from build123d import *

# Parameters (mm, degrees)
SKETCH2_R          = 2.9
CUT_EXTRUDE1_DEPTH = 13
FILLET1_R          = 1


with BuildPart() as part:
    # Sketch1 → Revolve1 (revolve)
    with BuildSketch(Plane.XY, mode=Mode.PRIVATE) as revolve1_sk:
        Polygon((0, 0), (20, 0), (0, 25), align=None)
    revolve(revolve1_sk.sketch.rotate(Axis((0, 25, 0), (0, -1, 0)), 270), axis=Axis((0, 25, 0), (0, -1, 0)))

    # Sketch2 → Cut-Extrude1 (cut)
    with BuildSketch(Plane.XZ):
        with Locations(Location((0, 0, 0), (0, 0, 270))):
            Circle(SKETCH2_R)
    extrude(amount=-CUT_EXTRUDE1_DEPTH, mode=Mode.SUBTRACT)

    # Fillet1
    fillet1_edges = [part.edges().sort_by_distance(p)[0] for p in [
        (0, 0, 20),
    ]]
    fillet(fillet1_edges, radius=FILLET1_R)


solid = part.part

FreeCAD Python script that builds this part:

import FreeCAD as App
import Part
import Sketcher
Q = App.Units.Quantity


def edges_at(feature, points):
    """Names of the edges that pass closest to the given points."""
    edges = feature.Shape.Edges
    near = lambda p: min(range(len(edges)), key=lambda i: edges[i].distToShape(Part.Vertex(*p))[0])
    return sorted({f"Edge{near(p) + 1}" for p in points})


def add_polygon(sketch, points):
    """Adds a closed chain of lines whose ends are joined by coincident constraints."""
    first, n = sketch.GeometryCount, len(points)
    for a, b in zip(points, points[1:] + points[:1]):
        sketch.addGeometry(Part.LineSegment(App.Vector(*a, 0), App.Vector(*b, 0)), False)
    for i in range(n):
        sketch.addConstraint(Sketcher.Constraint("Coincident", first + i, 2, first + (i + 1) % n, 1))

doc = App.newDocument("Part")
body = doc.addObject("PartDesign::Body", "Body")

# Sketch on XY plane
sketch1 = body.newObject("Sketcher::SketchObject", "Sketch")
sketch1.AttachmentSupport = (doc.getObject("XY_Plane"), [""])
sketch1.MapMode = "FlatFace"
add_polygon(sketch1, [(0, 0), (20, 0), (0, 25)])  # lines 0-2
sketch1.addConstraint(Sketcher.Constraint("Horizontal", 0))
sketch1.addConstraint(Sketcher.Constraint("Vertical", 2))
sketch1.addConstraint(Sketcher.Constraint("Coincident", 2, 2, -1, 1))
sketch1.addConstraint(Sketcher.Constraint("DistanceX", 0, 1, 0, 2, Q("20 mm")))
sketch1.addConstraint(Sketcher.Constraint("DistanceY", 2, 2, 2, 1, Q("25 mm")))
revolution = body.newObject("PartDesign::Revolution", "Revolution")
revolution.Profile = sketch1
revolution.ReferenceAxis = (sketch1, ["V_Axis"])
revolution.Angle = 360

# Sketch on XZ plane
sketch2 = body.newObject("Sketcher::SketchObject", "Sketch001")
sketch2.AttachmentSupport = (doc.getObject("XZ_Plane"), [""])
sketch2.MapMode = "FlatFace"
sketch2.addGeometry(Part.Circle(App.Vector(0, 0, 0), App.Vector(0, 0, 1), 2.9), False)
sketch2.addConstraint(Sketcher.Constraint("Coincident", 0, 3, -1, 1))
sketch2.addConstraint(Sketcher.Constraint("Diameter", 0, Q("5.8 mm")))
pocket1 = body.newObject("PartDesign::Pocket", "Pocket")
pocket1.Profile = sketch2
pocket1.Length = 13
doc.recompute()

fillet = body.newObject("PartDesign::Fillet", "Fillet")
fillet.Base = (pocket1, edges_at(pocket1, [(0, 0, 20)]))
fillet.Radius = 1

doc.recompute()
